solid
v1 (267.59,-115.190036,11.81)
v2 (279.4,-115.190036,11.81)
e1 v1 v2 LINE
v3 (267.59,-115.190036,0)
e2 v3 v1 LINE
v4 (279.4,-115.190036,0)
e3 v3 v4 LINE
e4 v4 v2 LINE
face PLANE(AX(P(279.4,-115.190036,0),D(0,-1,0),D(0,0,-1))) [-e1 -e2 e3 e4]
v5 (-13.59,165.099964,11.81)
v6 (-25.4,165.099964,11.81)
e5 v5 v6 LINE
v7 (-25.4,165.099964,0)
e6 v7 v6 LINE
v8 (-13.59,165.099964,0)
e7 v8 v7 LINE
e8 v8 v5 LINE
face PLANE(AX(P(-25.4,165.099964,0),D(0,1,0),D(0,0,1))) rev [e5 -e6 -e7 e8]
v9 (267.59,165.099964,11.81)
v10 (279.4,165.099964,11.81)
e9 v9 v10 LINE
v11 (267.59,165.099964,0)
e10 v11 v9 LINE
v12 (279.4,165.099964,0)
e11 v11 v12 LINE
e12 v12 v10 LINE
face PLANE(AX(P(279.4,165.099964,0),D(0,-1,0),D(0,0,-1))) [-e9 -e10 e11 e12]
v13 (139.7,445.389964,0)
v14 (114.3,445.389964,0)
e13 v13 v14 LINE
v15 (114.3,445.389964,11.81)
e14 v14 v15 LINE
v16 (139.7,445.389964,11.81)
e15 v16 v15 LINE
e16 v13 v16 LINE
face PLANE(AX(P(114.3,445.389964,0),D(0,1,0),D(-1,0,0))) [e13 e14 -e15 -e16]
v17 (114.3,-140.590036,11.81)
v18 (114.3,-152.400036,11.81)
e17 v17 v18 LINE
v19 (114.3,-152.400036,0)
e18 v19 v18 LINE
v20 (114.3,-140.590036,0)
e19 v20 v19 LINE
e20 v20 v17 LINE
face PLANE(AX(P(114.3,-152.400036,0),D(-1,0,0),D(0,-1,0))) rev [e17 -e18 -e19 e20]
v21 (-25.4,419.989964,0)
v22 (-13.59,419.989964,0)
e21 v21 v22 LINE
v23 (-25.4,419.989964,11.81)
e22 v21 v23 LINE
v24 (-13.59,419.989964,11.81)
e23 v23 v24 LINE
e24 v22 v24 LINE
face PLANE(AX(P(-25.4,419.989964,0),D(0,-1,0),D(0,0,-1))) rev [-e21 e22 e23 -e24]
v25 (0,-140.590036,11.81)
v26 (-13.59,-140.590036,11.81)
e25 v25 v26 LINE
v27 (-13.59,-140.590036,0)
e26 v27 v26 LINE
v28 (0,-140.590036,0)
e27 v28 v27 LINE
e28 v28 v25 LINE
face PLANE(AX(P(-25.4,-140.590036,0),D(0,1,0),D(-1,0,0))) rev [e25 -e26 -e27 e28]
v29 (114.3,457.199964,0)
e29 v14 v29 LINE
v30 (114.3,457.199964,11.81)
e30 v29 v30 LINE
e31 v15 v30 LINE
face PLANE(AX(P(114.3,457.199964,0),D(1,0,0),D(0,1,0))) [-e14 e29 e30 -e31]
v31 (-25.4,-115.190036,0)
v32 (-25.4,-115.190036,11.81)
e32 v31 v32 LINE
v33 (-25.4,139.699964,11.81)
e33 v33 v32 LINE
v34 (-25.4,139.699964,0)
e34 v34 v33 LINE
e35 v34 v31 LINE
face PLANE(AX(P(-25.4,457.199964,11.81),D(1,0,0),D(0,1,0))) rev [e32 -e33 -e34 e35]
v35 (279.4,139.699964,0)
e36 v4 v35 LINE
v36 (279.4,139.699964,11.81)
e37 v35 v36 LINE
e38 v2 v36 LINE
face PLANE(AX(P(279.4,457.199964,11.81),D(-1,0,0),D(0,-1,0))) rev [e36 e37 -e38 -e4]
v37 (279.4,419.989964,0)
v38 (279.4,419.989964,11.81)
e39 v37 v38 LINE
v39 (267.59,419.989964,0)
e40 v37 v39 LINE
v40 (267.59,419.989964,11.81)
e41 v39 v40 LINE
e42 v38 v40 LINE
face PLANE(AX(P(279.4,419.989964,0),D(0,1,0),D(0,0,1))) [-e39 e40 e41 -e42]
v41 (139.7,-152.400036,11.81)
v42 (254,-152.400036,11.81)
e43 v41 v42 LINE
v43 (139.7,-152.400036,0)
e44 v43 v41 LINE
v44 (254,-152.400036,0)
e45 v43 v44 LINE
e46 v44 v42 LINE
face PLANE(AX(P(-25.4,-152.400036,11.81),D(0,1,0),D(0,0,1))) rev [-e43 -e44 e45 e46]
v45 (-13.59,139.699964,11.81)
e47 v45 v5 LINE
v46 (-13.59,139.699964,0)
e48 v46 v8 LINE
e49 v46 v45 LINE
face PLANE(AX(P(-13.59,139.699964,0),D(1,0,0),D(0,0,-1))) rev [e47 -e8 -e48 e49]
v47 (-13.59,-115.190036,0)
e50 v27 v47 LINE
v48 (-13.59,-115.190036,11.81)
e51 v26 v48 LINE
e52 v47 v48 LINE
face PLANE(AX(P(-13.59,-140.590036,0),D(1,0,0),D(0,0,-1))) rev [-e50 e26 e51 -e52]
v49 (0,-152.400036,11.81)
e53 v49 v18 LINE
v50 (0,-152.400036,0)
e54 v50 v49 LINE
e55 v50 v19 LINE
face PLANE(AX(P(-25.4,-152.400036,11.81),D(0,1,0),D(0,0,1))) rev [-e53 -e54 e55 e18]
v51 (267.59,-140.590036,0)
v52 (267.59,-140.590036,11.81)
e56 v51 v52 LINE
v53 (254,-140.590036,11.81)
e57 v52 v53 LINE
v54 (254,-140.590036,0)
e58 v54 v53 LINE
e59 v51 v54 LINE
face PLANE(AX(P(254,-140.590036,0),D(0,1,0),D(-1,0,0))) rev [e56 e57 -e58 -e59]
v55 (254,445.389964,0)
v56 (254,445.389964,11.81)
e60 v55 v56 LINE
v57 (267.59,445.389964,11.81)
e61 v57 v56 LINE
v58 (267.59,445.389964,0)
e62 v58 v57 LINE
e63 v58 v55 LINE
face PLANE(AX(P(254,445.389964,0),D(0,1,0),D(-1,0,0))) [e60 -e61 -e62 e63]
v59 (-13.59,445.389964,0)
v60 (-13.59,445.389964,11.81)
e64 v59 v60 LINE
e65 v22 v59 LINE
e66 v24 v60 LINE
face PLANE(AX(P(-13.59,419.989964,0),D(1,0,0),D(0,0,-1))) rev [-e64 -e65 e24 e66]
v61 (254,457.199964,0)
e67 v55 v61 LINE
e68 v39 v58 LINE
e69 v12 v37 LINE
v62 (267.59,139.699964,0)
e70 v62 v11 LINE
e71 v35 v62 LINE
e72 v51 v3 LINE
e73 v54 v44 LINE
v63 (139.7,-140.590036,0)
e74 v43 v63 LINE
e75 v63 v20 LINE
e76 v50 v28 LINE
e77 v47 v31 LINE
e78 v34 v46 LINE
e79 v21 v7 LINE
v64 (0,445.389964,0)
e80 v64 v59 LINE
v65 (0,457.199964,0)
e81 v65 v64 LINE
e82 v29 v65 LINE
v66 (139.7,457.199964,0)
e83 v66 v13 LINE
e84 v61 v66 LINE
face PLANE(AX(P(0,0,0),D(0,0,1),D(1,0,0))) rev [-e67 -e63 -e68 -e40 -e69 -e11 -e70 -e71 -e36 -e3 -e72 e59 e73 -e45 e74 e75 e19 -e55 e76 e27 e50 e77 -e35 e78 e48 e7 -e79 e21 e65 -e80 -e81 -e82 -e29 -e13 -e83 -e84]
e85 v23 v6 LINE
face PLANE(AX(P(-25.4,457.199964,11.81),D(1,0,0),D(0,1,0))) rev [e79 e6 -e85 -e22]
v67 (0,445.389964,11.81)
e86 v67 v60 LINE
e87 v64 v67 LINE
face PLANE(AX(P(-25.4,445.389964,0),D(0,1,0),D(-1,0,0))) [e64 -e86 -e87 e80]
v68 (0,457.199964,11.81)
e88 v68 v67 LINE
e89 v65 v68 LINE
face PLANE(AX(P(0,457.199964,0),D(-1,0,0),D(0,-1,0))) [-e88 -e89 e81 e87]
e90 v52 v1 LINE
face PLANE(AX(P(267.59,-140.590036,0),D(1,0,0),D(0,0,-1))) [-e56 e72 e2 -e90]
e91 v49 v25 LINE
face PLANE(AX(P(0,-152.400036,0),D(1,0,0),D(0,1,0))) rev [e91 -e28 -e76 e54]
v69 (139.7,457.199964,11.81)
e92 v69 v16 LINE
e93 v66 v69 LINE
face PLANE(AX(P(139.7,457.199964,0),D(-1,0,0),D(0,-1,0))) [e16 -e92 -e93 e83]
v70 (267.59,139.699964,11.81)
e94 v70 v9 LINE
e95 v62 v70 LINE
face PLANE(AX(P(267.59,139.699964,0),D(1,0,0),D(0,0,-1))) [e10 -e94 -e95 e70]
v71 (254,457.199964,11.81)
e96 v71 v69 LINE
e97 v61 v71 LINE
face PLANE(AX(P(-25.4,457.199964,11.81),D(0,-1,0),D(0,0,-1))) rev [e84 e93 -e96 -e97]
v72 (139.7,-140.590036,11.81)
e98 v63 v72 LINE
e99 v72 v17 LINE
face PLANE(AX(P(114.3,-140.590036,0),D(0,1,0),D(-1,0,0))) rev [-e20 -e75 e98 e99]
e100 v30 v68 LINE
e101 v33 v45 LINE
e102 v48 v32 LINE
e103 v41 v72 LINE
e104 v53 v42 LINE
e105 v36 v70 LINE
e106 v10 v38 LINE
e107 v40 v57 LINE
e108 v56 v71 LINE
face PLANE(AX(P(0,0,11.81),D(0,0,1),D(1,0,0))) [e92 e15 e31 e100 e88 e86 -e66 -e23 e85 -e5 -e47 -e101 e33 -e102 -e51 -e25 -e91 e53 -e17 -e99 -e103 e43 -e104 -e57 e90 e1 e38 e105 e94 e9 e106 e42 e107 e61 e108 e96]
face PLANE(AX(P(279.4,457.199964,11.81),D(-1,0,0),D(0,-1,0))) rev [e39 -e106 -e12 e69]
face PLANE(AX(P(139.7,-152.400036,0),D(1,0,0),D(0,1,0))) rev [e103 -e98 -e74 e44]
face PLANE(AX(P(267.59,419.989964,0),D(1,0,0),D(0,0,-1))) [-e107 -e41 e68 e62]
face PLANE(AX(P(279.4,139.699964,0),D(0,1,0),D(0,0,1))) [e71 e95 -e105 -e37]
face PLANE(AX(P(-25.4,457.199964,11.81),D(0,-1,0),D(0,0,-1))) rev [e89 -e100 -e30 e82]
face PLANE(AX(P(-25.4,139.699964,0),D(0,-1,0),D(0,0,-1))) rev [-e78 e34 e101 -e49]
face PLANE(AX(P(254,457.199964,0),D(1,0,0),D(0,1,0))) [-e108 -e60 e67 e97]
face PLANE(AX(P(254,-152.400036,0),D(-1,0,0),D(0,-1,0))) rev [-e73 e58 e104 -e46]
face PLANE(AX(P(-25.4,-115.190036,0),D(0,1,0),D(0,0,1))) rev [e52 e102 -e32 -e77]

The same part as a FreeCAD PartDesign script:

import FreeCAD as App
import Part
import Sketcher

V = App.Vector
Q = App.Units.Quantity


def add_polygon(sketch, points):
    """Adds a closed chain of lines whose ends are joined by coincident constraints."""
    first, n = sketch.GeometryCount, len(points)
    for a, b in zip(points, points[1:] + points[:1]):
        sketch.addGeometry(Part.LineSegment(App.Vector(*a, 0), App.Vector(*b, 0)), False)
    for i in range(n):
        sketch.addConstraint(Sketcher.Constraint("Coincident", first + i, 2, first + (i + 1) % n, 1))

doc = App.newDocument("Part")
body = doc.addObject("PartDesign::Body", "Body")

sketch1 = body.newObject("Sketcher::SketchObject", "Sketch")
sketch1.AttachmentSupport = (doc.getObject("XY_Plane"), [""])
sketch1.MapMode = "FlatFace"
add_polygon(sketch1, [(-25.4, 457.199964), (-25.4, -152.400036), (279.4, -152.400036), (279.4, 457.199964)])
sketch1.addConstraint([
    Sketcher.Constraint("Vertical", 0),
    Sketcher.Constraint("Horizontal", 1),
    Sketcher.Constraint("Vertical", 2),
    Sketcher.Constraint("Horizontal", 3),
    Sketcher.Constraint("DistanceX", 1, 1, 1, 2, Q("12 in")),
    Sketcher.Constraint("DistanceY", 0, 2, 0, 1, Q("24 in")),
    Sketcher.Constraint("DistanceX", 0, 2, -1, 1, Q("1 in")),
    Sketcher.Constraint("DistanceY", 0, 2, -1, 1, Q("152.400036 mm")),
])
pad1 = body.newObject("PartDesign::Pad", "Pad")
pad1.Profile = sketch1
pad1.Length = 11.81

sketch2 = body.newObject("Sketcher::SketchObject", "Sketch001")
sketch2.AttachmentSupport = (doc.getObject("XY_Plane"), [""])
sketch2.MapMode = "FlatFace"
sketch2.AttachmentOffset = App.Placement(V(0, 0, 11.81), App.Rotation())
add_polygon(sketch2, [(-25.4, -140.590036), (-25.4, -152.400036), (0, -152.400036), (0, -140.590036)])
sketch2.addConstraint([
    Sketcher.Constraint("Vertical", 0),
    Sketcher.Constraint("Horizontal", 1),
    Sketcher.Constraint("Vertical", 2),
    Sketcher.Constraint("Horizontal", 3),
    Sketcher.Constraint("PointOnObject", 1, 2, -2),
    Sketcher.Constraint("DistanceX", 1, 1, 1, 2, Q("1 in")),
    Sketcher.Constraint("DistanceY", 0, 2, 0, 1, Q("11.81 mm")),
    Sketcher.Constraint("DistanceY", 0, 2, -1, 1, Q("152.400036 mm")),
])
pocket1 = body.newObject("PartDesign::Pocket", "Pocket")
pocket1.Profile = sketch2
pocket1.Type = "ThroughAll"
doc.recompute()

linearpattern = body.newObject("PartDesign::LinearPattern", "LinearPattern")
linearpattern.Originals = [pocket1]
linearpattern.Direction = (doc.getObject("X_Axis"), [""])
linearpattern.Mode = "offset"
linearpattern.Offset = Q("5.5 in")
linearpattern.Occurrences = 3
body.Tip = linearpattern
doc.recompute()

datumplane = body.newObject("PartDesign::Plane", "DatumPlane")
datumplane.AttachmentSupport = (doc.getObject("XZ_Plane"), [""])
datumplane.MapMode = "FlatFace"
datumplane.AttachmentOffset = App.Placement(V(0, 0, -152.399964), App.Rotation())
mirrored = body.newObject("PartDesign::Mirrored", "Mirrored")
mirrored.Originals = [pocket1]
mirrored.MirrorPlane = (datumplane, [""])
body.Tip = mirrored

sketch3 = body.newObject("Sketcher::SketchObject", "Sketch002")
sketch3.AttachmentSupport = (doc.getObject("XY_Plane"), [""])
sketch3.MapMode = "FlatFace"
sketch3.AttachmentOffset = App.Placement(V(0, 0, 11.81), App.Rotation())
add_polygon(sketch3, [(114.3, 457.199964), (114.3, 445.389964), (139.7, 445.389964), (139.7, 457.199964)])
sketch3.addConstraint([
    Sketcher.Constraint("Vertical", 0),
    Sketcher.Constraint("Horizontal", 1),
    Sketcher.Constraint("Vertical", 2),
    Sketcher.Constraint("Horizontal", 3),
    Sketcher.Constraint("DistanceX", 1, 1, 1, 2, Q("1 in")),
    Sketcher.Constraint("DistanceX", -1, 1, 0, 2, Q("4.5 in")),
    Sketcher.Constraint("DistanceY", 0, 2, 0, 1, Q("11.81 mm")),
    Sketcher.Constraint("DistanceY", -1, 1, 0, 2, Q("445.389964 mm")),
])
pocket2 = body.newObject("PartDesign::Pocket", "Pocket001")
pocket2.Profile = sketch3
pocket2.Type = "ThroughAll"

sketch4 = body.newObject("Sketcher::SketchObject", "Sketch003")
sketch4.AttachmentSupport = (doc.getObject("XY_Plane"), [""])
sketch4.MapMode = "FlatFace"
sketch4.AttachmentOffset = App.Placement(V(0, 0, 11.81), App.Rotation())
add_polygon(sketch4, [(254, 457.199964), (254, 445.389964), (279.4, 445.389964), (279.4, 457.199964)])
sketch4.addConstraint([
    Sketcher.Constraint("Vertical", 0),
    Sketcher.Constraint("Horizontal", 1),
    Sketcher.Constraint("Vertical", 2),
    Sketcher.Constraint("Horizontal", 3),
    Sketcher.Constraint("DistanceX", 1, 1, 1, 2, Q("1 in")),
    Sketcher.Constraint("DistanceX", -1, 1, 0, 2, Q("10 in")),
    Sketcher.Constraint("DistanceY", 0, 2, 0, 1, Q("11.81 mm")),
    Sketcher.Constraint("DistanceY", -1, 1, 0, 2, Q("445.389964 mm")),
])
pocket3 = body.newObject("PartDesign::Pocket", "Pocket002")
pocket3.Profile = sketch4
pocket3.Type = "ThroughAll"

sketch5 = body.newObject("Sketcher::SketchObject", "Sketch004")
sketch5.AttachmentSupport = (doc.getObject("XY_Plane"), [""])
sketch5.MapMode = "FlatFace"
sketch5.AttachmentOffset = App.Placement(V(0, 0, 11.81), App.Rotation())
add_polygon(sketch5, [(-25.4, -115.190036), (-25.4, -140.590036), (-13.59, -140.590036), (-13.59, -115.190036)])
sketch5.addConstraint([
    Sketcher.Constraint("Vertical", 0),
    Sketcher.Constraint("Horizontal", 1),
    Sketcher.Constraint("Vertical", 2),
    Sketcher.Constraint("Horizontal", 3),
    Sketcher.Constraint("DistanceY", 0, 2, 0, 1, Q("1 in")),
    Sketcher.Constraint("DistanceX", 0, 2, -1, 1, Q("1 in")),
    Sketcher.Constraint("DistanceX", 1, 1, 1, 2, Q("11.81 mm")),
    Sketcher.Constraint("DistanceY", 0, 2, -1, 1, Q("140.590036 mm")),
])
pocket4 = body.newObject("PartDesign::Pocket", "Pocket003")
pocket4.Profile = sketch5
pocket4.Type = "ThroughAll"
doc.recompute()

linearpattern2 = body.newObject("PartDesign::LinearPattern", "LinearPattern001")
linearpattern2.Originals = [pocket4]
linearpattern2.Direction = (doc.getObject("Y_Axis"), [""])
linearpattern2.Mode = "offset"
linearpattern2.Offset = 280.29
linearpattern2.Occurrences = 3
body.Tip = linearpattern2
doc.recompute()

datumplane2 = body.newObject("PartDesign::Plane", "DatumPlane001")
datumplane2.AttachmentSupport = (doc.getObject("YZ_Plane"), [""])
datumplane2.MapMode = "FlatFace"
datumplane2.AttachmentOffset = App.Placement(V(0, 0, 5 * 25.4), App.Rotation())
mirrored2 = body.newObject("PartDesign::Mirrored", "Mirrored001")
mirrored2.Originals = [pocket4]
mirrored2.MirrorPlane = (datumplane2, [""])
body.Tip = mirrored2

sketch6 = body.newObject("Sketcher::SketchObject", "Sketch005")
sketch6.AttachmentSupport = (doc.getObject("XY_Plane"), [""])
sketch6.MapMode = "FlatFace"
sketch6.AttachmentOffset = App.Placement(V(0, 0, 11.81), App.Rotation())
add_polygon(sketch6, [(279.4, 139.699964), (279.4, 165.099964), (267.59, 165.099964), (267.59, 139.699964)])
sketch6.addConstraint([
    Sketcher.Constraint("Vertical", 0),
    Sketcher.Constraint("Horizontal", 1),
    Sketcher.Constraint("Vertical", 2),
    Sketcher.Constraint("Horizontal", 3),
    Sketcher.Constraint("DistanceY", 0, 1, 0, 2, Q("1 in")),
    Sketcher.Constraint("DistanceX", -1, 1, 0, 2, Q("11 in")),
    Sketcher.Constraint("DistanceX", 1, 2, 1, 1, Q("11.81 mm")),
    Sketcher.Constraint("DistanceY", -1, 1, 0, 2, Q("165.099964 mm")),
])
pocket5 = body.newObject("PartDesign::Pocket", "Pocket004")
pocket5.Profile = sketch6
pocket5.Type = "ThroughAll"

sketch7 = body.newObject("Sketcher::SketchObject", "Sketch006")
sketch7.AttachmentSupport = (doc.getObject("XY_Plane"), [""])
sketch7.MapMode = "FlatFace"
sketch7.AttachmentOffset = App.Placement(V(0, 0, 11.81), App.Rotation())
add_polygon(sketch7, [(279.4, 419.989964), (279.4, 445.389964), (267.59, 445.389964), (267.59, 419.989964)])
sketch7.addConstraint([
    Sketcher.Constraint("Vertical", 0),
    Sketcher.Constraint("Horizontal", 1),
    Sketcher.Constraint("Vertical", 2),
    Sketcher.Constraint("Horizontal", 3),
    Sketcher.Constraint("DistanceY", 0, 1, 0, 2, Q("1 in")),
    Sketcher.Constraint("DistanceX", -1, 1, 0, 2, Q("11 in")),
    Sketcher.Constraint("DistanceX", 1, 2, 1, 1, Q("11.81 mm")),
    Sketcher.Constraint("DistanceY", -1, 1, 0, 2, Q("445.389964 mm")),
])
pocket6 = body.newObject("PartDesign::Pocket", "Pocket005")
pocket6.Profile = sketch7
pocket6.Type = "ThroughAll"

doc.recompute()
